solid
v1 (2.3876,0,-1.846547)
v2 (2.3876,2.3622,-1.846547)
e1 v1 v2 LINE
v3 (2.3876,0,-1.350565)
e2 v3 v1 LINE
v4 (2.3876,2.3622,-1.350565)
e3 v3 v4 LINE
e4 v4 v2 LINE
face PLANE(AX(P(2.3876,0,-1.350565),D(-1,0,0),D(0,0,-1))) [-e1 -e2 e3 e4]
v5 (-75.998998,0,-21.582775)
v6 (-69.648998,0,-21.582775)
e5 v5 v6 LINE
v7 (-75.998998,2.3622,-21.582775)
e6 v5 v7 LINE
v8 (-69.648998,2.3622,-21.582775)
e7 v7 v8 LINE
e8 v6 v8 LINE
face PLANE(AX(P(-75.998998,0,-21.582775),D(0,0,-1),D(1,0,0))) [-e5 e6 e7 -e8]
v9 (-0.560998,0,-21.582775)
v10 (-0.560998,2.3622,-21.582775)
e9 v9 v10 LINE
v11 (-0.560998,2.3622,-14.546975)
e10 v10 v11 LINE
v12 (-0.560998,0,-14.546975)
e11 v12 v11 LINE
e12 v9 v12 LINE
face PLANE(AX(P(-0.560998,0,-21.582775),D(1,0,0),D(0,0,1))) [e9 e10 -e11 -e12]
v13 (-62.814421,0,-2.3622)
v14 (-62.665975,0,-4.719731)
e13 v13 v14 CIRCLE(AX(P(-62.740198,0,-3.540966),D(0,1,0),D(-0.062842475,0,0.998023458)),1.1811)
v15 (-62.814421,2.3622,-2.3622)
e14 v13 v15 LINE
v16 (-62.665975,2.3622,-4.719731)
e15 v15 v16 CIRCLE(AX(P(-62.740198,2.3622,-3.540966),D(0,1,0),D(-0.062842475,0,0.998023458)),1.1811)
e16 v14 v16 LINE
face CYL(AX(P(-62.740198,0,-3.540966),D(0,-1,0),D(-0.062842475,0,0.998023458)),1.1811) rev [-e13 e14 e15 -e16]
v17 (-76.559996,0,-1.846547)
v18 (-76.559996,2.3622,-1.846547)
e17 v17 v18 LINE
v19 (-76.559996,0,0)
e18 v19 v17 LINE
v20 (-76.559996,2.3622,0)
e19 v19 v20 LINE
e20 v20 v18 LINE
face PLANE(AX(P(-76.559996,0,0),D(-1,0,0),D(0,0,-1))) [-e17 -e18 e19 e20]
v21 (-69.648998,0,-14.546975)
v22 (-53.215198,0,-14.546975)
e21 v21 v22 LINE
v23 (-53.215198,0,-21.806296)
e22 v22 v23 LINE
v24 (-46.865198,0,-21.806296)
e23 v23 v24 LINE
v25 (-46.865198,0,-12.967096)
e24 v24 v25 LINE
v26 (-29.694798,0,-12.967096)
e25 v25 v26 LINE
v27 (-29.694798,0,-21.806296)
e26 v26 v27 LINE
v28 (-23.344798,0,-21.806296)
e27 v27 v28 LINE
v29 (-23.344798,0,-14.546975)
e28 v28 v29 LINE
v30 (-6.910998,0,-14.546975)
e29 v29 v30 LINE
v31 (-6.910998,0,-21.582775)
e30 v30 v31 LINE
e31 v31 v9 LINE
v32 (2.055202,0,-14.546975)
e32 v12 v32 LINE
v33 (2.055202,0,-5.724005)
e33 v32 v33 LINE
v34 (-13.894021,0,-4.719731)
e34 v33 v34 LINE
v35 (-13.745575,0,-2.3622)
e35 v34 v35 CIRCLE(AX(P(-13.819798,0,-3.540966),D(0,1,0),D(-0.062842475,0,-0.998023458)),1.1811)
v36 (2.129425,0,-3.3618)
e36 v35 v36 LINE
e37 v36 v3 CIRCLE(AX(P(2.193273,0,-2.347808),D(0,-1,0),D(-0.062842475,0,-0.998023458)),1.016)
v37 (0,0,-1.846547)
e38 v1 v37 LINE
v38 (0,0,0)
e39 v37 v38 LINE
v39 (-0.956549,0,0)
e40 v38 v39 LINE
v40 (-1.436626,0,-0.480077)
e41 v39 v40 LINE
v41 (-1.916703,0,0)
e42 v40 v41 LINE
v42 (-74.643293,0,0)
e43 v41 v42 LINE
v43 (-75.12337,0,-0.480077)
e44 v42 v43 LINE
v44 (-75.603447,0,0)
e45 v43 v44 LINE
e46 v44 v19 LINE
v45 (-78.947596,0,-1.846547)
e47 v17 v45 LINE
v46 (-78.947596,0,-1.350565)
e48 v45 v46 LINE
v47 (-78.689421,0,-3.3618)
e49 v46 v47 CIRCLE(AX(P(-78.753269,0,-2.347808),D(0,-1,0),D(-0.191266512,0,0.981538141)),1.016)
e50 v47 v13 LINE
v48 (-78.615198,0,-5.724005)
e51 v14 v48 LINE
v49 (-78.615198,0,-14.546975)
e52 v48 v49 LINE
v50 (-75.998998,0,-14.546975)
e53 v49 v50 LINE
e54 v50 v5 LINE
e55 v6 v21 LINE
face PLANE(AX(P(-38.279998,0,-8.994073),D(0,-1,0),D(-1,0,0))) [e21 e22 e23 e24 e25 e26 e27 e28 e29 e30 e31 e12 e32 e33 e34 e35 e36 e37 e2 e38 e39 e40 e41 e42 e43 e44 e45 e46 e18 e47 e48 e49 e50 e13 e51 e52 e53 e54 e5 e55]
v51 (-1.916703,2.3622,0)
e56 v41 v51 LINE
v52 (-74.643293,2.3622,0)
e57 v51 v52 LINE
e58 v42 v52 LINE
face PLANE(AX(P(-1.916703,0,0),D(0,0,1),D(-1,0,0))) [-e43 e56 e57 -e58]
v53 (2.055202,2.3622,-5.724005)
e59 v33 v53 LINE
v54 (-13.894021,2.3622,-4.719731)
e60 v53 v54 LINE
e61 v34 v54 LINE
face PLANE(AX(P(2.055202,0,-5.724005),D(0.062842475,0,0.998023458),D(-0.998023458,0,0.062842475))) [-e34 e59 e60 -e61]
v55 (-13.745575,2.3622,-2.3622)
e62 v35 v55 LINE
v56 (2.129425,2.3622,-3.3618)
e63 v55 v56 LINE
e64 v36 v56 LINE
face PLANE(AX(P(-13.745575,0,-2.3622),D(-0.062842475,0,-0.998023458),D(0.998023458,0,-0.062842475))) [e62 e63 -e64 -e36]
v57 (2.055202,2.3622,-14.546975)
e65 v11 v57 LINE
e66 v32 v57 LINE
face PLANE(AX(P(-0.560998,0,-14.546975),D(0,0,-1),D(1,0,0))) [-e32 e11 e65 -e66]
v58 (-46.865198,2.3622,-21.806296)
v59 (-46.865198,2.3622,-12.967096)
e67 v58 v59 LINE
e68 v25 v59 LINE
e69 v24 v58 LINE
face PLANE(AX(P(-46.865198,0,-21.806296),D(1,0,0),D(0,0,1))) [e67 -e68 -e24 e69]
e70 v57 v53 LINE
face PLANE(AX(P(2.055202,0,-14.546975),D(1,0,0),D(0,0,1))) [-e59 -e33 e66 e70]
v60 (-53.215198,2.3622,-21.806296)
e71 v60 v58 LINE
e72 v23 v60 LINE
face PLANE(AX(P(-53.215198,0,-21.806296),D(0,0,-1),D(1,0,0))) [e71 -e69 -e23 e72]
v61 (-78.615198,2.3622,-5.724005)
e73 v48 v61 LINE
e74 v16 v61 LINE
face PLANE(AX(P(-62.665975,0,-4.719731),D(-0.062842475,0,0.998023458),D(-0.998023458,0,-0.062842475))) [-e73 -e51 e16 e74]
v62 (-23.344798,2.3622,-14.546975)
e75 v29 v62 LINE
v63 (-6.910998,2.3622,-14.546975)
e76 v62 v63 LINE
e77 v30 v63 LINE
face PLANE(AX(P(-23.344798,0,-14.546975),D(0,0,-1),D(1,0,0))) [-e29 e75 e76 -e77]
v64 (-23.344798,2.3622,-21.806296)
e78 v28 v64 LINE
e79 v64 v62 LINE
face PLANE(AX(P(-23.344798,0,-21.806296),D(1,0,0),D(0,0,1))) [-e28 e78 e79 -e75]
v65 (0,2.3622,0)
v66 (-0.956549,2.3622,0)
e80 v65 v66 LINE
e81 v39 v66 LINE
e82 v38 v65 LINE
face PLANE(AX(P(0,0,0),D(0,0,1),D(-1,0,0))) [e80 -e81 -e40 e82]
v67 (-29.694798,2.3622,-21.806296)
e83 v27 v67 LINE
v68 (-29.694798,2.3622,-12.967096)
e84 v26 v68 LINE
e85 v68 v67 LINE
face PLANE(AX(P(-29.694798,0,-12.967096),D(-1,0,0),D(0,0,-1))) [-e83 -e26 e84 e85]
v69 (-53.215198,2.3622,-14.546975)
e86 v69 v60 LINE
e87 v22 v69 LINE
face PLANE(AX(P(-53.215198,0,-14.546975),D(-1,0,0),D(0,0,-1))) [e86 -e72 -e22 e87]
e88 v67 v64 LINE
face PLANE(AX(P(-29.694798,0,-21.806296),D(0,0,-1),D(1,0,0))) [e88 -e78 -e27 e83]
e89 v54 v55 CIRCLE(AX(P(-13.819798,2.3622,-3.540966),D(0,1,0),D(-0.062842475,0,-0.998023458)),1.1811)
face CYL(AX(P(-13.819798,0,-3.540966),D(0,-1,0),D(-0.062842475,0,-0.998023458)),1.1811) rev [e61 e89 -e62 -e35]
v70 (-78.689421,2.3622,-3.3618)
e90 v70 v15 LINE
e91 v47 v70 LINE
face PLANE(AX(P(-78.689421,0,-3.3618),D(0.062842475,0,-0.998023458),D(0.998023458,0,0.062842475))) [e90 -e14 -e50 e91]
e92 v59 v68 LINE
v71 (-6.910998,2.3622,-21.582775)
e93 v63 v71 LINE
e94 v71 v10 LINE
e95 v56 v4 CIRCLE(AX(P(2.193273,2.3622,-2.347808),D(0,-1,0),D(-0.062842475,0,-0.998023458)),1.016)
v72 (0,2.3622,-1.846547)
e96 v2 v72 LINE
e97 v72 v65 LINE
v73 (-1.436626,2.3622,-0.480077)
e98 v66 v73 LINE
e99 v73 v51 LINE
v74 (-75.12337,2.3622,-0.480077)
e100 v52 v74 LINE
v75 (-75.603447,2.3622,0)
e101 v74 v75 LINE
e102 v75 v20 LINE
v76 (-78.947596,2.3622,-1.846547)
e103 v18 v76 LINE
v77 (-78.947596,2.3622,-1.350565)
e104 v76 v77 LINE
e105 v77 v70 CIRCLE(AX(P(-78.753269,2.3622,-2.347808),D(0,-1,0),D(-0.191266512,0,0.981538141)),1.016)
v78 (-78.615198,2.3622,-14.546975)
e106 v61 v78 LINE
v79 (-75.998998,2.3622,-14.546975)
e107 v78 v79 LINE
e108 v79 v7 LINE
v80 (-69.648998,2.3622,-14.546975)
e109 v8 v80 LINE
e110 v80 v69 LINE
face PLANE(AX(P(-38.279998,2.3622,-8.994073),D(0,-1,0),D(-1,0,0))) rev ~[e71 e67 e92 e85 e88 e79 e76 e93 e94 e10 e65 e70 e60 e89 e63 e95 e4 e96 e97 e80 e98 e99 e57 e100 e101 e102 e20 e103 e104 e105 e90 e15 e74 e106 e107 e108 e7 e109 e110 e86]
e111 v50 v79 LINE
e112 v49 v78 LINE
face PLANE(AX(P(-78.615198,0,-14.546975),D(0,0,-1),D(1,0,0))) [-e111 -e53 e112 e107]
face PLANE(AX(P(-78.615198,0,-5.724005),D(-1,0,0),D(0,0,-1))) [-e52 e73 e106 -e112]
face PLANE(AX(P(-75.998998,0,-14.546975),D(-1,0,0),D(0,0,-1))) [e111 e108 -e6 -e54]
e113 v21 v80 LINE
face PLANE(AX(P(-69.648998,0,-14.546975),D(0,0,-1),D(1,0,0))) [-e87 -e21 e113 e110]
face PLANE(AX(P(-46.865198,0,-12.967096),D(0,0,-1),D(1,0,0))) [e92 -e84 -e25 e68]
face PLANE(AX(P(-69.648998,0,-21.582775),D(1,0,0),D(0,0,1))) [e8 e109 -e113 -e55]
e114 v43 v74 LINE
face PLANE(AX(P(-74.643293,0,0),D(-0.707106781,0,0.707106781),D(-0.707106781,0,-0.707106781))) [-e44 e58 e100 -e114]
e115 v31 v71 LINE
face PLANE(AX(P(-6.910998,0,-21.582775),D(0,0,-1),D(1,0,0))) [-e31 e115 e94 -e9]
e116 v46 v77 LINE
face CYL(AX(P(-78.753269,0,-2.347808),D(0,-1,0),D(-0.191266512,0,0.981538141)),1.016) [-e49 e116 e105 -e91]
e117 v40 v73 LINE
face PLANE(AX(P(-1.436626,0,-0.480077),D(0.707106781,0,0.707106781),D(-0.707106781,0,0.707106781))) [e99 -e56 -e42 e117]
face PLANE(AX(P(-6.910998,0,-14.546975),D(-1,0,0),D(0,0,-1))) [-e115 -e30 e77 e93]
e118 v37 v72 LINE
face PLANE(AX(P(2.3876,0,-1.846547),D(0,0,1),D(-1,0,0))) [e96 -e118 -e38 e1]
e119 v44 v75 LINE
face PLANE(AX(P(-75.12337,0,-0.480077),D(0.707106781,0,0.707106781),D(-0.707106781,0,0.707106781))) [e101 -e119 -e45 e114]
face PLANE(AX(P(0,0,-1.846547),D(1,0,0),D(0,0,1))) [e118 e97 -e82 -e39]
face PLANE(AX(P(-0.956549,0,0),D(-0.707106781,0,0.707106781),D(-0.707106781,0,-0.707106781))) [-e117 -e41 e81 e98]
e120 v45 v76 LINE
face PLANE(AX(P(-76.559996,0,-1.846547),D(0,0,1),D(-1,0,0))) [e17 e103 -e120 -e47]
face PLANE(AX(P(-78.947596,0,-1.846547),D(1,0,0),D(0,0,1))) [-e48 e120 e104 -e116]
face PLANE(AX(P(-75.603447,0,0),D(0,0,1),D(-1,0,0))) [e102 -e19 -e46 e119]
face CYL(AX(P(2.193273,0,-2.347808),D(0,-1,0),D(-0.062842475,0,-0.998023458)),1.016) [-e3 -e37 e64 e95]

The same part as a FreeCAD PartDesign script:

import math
import FreeCAD as App
import Part
import Sketcher
Q = App.Units.Quantity

doc = App.newDocument("Part")
body = doc.addObject("PartDesign::Body", "Body")

# Sketch on XZ plane
sketch1 = doc.addObject("Sketcher::SketchObject", "Sketch")
body.addObject(sketch1)
sketch1.AttachmentSupport = (doc.XZ_Plane, [""])
sketch1.MapMode = "FlatFace"
sketch1.addGeometry([
    Part.LineSegment(App.Vector(2.055202, -5.724005, 0), App.Vector(2.055202, -14.546975, 0)),  # 0
    Part.LineSegment(App.Vector(2.055202, -14.546975, 0), App.Vector(-0.560998, -14.546975, 0)),  # 1
    Part.LineSegment(App.Vector(-0.560998, -14.546975, 0), App.Vector(-0.560998, -21.582775, 0)),  # 2
    Part.LineSegment(App.Vector(-0.560998, -21.582775, 0), App.Vector(-6.910998, -21.582775, 0)),  # 3
    Part.LineSegment(App.Vector(-6.910998, -21.582775, 0), App.Vector(-6.910998, -14.546975, 0)),  # 4
    Part.LineSegment(App.Vector(-6.910998, -14.546975, 0), App.Vector(-23.344798, -14.546975, 0)),  # 5
    Part.LineSegment(App.Vector(-23.344798, -14.546975, 0), App.Vector(-23.344798, -21.806296, 0)),  # 6
    Part.LineSegment(App.Vector(-23.344798, -21.806296, 0), App.Vector(-29.694798, -21.806296, 0)),  # 7
    Part.LineSegment(App.Vector(-29.694798, -21.806296, 0), App.Vector(-29.694798, -12.967096, 0)),  # 8
    Part.LineSegment(App.Vector(-29.694798, -12.967096, 0), App.Vector(-46.865198, -12.967096, 0)),  # 9
    Part.LineSegment(App.Vector(-46.865198, -12.967096, 0), App.Vector(-46.865198, -21.806296, 0)),  # 10
    Part.LineSegment(App.Vector(-46.865198, -21.806296, 0), App.Vector(-53.215198, -21.806296, 0)),  # 11
    Part.LineSegment(App.Vector(-53.215198, -21.806296, 0), App.Vector(-53.215198, -14.546975, 0)),  # 12
    Part.LineSegment(App.Vector(-53.215198, -14.546975, 0), App.Vector(-69.648998, -14.546975, 0)),  # 13
    Part.LineSegment(App.Vector(-69.648998, -14.546975, 0), App.Vector(-69.648998, -21.582775, 0)),  # 14
    Part.LineSegment(App.Vector(-69.648998, -21.582775, 0), App.Vector(-75.998998, -21.582775, 0)),  # 15
    Part.LineSegment(App.Vector(-75.998998, -21.582775, 0), App.Vector(-75.998998, -14.546975, 0)),  # 16
    Part.LineSegment(App.Vector(-75.998998, -14.546975, 0), App.Vector(-78.615198, -14.546975, 0)),  # 17
    Part.LineSegment(App.Vector(-78.615198, -14.546975, 0), App.Vector(-78.615198, -5.724005, 0)),  # 18
    Part.LineSegment(App.Vector(-78.615198, -5.724005, 0), App.Vector(-62.665975, -4.719731, 0)),  # 19
    Part.ArcOfCircle(Part.Circle(App.Vector(-62.740198, -3.540966, 0), App.Vector(0, 0, 1), 1.1811), math.radians(-86.397017), math.radians(93.602983)),  # 20
    Part.LineSegment(App.Vector(-62.814421, -2.3622, 0), App.Vector(-78.689421, -3.3618, 0)),  # 21
    Part.ArcOfCircle(Part.Circle(App.Vector(-78.753269, -2.347808, 0), App.Vector(0, 0, 1), 1.016), math.radians(101.026706), math.radians(273.602983)),  # 22
    Part.LineSegment(App.Vector(-78.947596, -1.350565, 0), App.Vector(-78.947596, -1.846547, 0)),  # 23
    Part.LineSegment(App.Vector(-78.947596, -1.846547, 0), App.Vector(-76.559996, -1.846547, 0)),  # 24
    Part.LineSegment(App.Vector(-76.559996, -1.846547, 0), App.Vector(-76.559996, 0, 0)),  # 25
    Part.LineSegment(App.Vector(-76.559996, 0, 0), App.Vector(-75.603447, 0, 0)),  # 26
    Part.LineSegment(App.Vector(-75.603447, 0, 0), App.Vector(-75.12337, -0.480077, 0)),  # 27
    Part.LineSegment(App.Vector(-75.12337, -0.480077, 0), App.Vector(-74.643293, 0, 0)),  # 28
    Part.LineSegment(App.Vector(-74.643293, 0, 0), App.Vector(-1.916703, 0, 0)),  # 29
    Part.LineSegment(App.Vector(-1.916703, 0, 0), App.Vector(-1.436626, -0.480077, 0)),  # 30
    Part.LineSegment(App.Vector(-1.436626, -0.480077, 0), App.Vector(-0.956549, 0, 0)),  # 31
    Part.LineSegment(App.Vector(-0.956549, 0, 0), App.Vector(0, 0, 0)),  # 32
    Part.LineSegment(App.Vector(0, 0, 0), App.Vector(0, -1.846547, 0)),  # 33
    Part.LineSegment(App.Vector(0, -1.846547, 0), App.Vector(2.3876, -1.846547, 0)),  # 34
    Part.LineSegment(App.Vector(2.3876, -1.846547, 0), App.Vector(2.3876, -1.350565, 0)),  # 35
    Part.ArcOfCircle(Part.Circle(App.Vector(2.193273, -2.347808, 0), App.Vector(0, 0, 1), 1.016), math.radians(-93.602983), math.radians(78.973294)),  # 36
    Part.LineSegment(App.Vector(2.129425, -3.3618, 0), App.Vector(-13.745575, -2.3622, 0)),  # 37
    Part.ArcOfCircle(Part.Circle(App.Vector(-13.819798, -3.540966, 0), App.Vector(0, 0, 1), 1.1811), math.radians(86.397017), math.radians(266.397017)),  # 38
    Part.LineSegment(App.Vector(-13.894021, -4.719731, 0), App.Vector(2.055202, -5.724005, 0)),  # 39
], False)
sketch1.addConstraint([
    Sketcher.Constraint("Coincident", 0, 2, 1, 1),
    Sketcher.Constraint("Coincident", 1, 2, 2, 1),
    Sketcher.Constraint("Coincident", 2, 2, 3, 1),
    Sketcher.Constraint("Coincident", 3, 2, 4, 1),
    Sketcher.Constraint("Coincident", 4, 2, 5, 1),
    Sketcher.Constraint("Coincident", 5, 2, 6, 1),
    Sketcher.Constraint("Coincident", 6, 2, 7, 1),
    Sketcher.Constraint("Coincident", 7, 2, 8, 1),
    Sketcher.Constraint("Coincident", 8, 2, 9, 1),
    Sketcher.Constraint("Coincident", 9, 2, 10, 1),
    Sketcher.Constraint("Coincident", 10, 2, 11, 1),
    Sketcher.Constraint("Coincident", 11, 2, 12, 1),
    Sketcher.Constraint("Coincident", 12, 2, 13, 1),
    Sketcher.Constraint("Coincident", 13, 2, 14, 1),
    Sketcher.Constraint("Coincident", 14, 2, 15, 1),
    Sketcher.Constraint("Coincident", 15, 2, 16, 1),
    Sketcher.Constraint("Coincident", 16, 2, 17, 1),
    Sketcher.Constraint("Coincident", 17, 2, 18, 1),
    Sketcher.Constraint("Coincident", 18, 2, 19, 1),
    Sketcher.Constraint("Coincident", 19, 2, 20, 1),
    Sketcher.Constraint("Coincident", 20, 2, 21, 1),
    Sketcher.Constraint("Coincident", 21, 2, 22, 2),
    Sketcher.Constraint("Coincident", 22, 1, 23, 1),
    Sketcher.Constraint("Coincident", 23, 2, 24, 1),
    Sketcher.Constraint("Coincident", 24, 2, 25, 1),
    Sketcher.Constraint("Coincident", 25, 2, 26, 1),
    Sketcher.Constraint("Coincident", 26, 2, 27, 1),
    Sketcher.Constraint("Coincident", 27, 2, 28, 1),
    Sketcher.Constraint("Coincident", 28, 2, 29, 1),
    Sketcher.Constraint("Coincident", 29, 2, 30, 1),
    Sketcher.Constraint("Coincident", 30, 2, 31, 1),
    Sketcher.Constraint("Coincident", 31, 2, 32, 1),
    Sketcher.Constraint("Coincident", 32, 2, 33, 1),
    Sketcher.Constraint("Coincident", 33, 2, 34, 1),
    Sketcher.Constraint("Coincident", 34, 2, 35, 1),
    Sketcher.Constraint("Coincident", 35, 2, 36, 2),
    Sketcher.Constraint("Coincident", 36, 1, 37, 1),
    Sketcher.Constraint("Coincident", 37, 2, 38, 1),
    Sketcher.Constraint("Coincident", 38, 2, 39, 1),
    Sketcher.Constraint("Coincident", 39, 2, 0, 1),
    Sketcher.Constraint("Vertical", 0),
    Sketcher.Constraint("Horizontal", 1),
    Sketcher.Constraint("Vertical", 2),
    Sketcher.Constraint("Horizontal", 3),
    Sketcher.Constraint("Vertical", 4),
    Sketcher.Constraint("Horizontal", 5),
    Sketcher.Constraint("Vertical", 6),
    Sketcher.Constraint("Horizontal", 7),
    Sketcher.Constraint("Vertical", 8),
    Sketcher.Constraint("Horizontal", 9),
    Sketcher.Constraint("Vertical", 10),
    Sketcher.Constraint("Horizontal", 11),
    Sketcher.Constraint("Vertical", 12),
    Sketcher.Constraint("Horizontal", 13),
    Sketcher.Constraint("Vertical", 14),
    Sketcher.Constraint("Horizontal", 15),
    Sketcher.Constraint("Vertical", 16),
    Sketcher.Constraint("Horizontal", 17),
    Sketcher.Constraint("Vertical", 18),
    Sketcher.Constraint("Vertical", 23),
    Sketcher.Constraint("Horizontal", 24),
    Sketcher.Constraint("Vertical", 25),
    Sketcher.Constraint("Horizontal", 26),
    Sketcher.Constraint("Horizontal", 29),
    Sketcher.Constraint("Horizontal", 32),
    Sketcher.Constraint("Vertical", 33),
    Sketcher.Constraint("Horizontal", 34),
    Sketcher.Constraint("Vertical", 35),
    Sketcher.Constraint("Coincident", 32, 2, -1, 1),
    Sketcher.Constraint("PointOnObject", 25, 2, -1),
    Sketcher.Constraint("PointOnObject", 28, 2, -1),
    Sketcher.Constraint("Radius", 22, Q("0.04 in")),
    Sketcher.Constraint("Radius", 36, Q("0.04 in")),
    Sketcher.Constraint("DistanceX", 3, 2, 3, 1, Q("0.25 in")),
    Sketcher.Constraint("DistanceX", 7, 2, 7, 1, Q("0.25 in")),
    Sketcher.Constraint("DistanceX", 11, 2, 11, 1, Q("0.25 in")),
    Sketcher.Constraint("DistanceX", 15, 2, 15, 1, Q("0.25 in")),
    Sketcher.Constraint("Radius", 20, Q("0.0465 in")),
    Sketcher.Constraint("Radius", 38, Q("0.0465 in")),
    Sketcher.Constraint("DistanceX", 1, 2, 1, 1, Q("0.103 in")),
    Sketcher.Constraint("DistanceX", 5, 2, 5, 1, Q("0.647 in")),
    Sketcher.Constraint("DistanceX", 9, 2, 9, 1, Q("0.676 in")),
    Sketcher.Constraint("DistanceX", 13, 2, 13, 1, Q("0.647 in")),
    Sketcher.Constraint("DistanceX", 17, 2, 17, 1, Q("0.103 in")),
    Sketcher.Constraint("DistanceX", 24, 1, 24, 2, Q("0.094 in")),
    Sketcher.Constraint("DistanceX", 34, 1, 34, 2, Q("0.094 in")),
    Sketcher.Constraint("DistanceY", 2, 2, 2, 1, Q("0.277 in")),
    Sketcher.Constraint("DistanceY", 4, 1, 4, 2, Q("0.277 in")),
    Sketcher.Constraint("DistanceY", 8, 1, 8, 2, Q("0.348 in")),
    Sketcher.Constraint("DistanceY", 10, 2, 10, 1, Q("0.348 in")),
    Sketcher.Constraint("DistanceY", 14, 2, 14, 1, Q("0.277 in")),
    Sketcher.Constraint("DistanceY", 16, 1, 16, 2, Q("0.277 in")),
    Sketcher.Constraint("DistanceY", 6, 2, 6, 1, Q("0.2858 in")),
    Sketcher.Constraint("DistanceY", 12, 1, 12, 2, Q("0.2858 in")),
    Sketcher.Constraint("DistanceY", 20, 2, -1, 1, Q("0.093 in")),
    Sketcher.Constraint("DistanceY", 37, 2, -1, 1, Q("0.093 in")),
    Sketcher.Constraint("DistanceX", 20, 3, 38, 3, Q("1.926 in")),
    Sketcher.Constraint("DistanceX", 38, 3, 0, 2, Q("0.625 in")),
    Sketcher.Constraint("DistanceY", 18, 2, 21, 2, Q("0.0930002 in")),
    Sketcher.Constraint("DistanceY", 39, 2, 36, 1, Q("0.0930002 in")),
    Sketcher.Constraint("DistanceX", 26, 1, 26, 2, 0.956549),
    Sketcher.Constraint("DistanceX", 29, 1, 29, 2, 72.72659),
    Sketcher.Constraint("DistanceX", 32, 1, 32, 2, 0.956549),
    Sketcher.Constraint("DistanceY", 0, 2, 0, 1, 8.822971),
    Sketcher.Constraint("DistanceY", 18, 1, 18, 2, 8.822971),
    Sketcher.Constraint("DistanceY", 23, 2, 23, 1, 0.495981),
    Sketcher.Constraint("DistanceY", 35, 1, 35, 2, 0.495981),
    Sketcher.Constraint("DistanceY", 21, 2, -1, 1, 3.3618),
    Sketcher.Constraint("DistanceX", 30, 2, 36, 3, 3.629899),
    Sketcher.Constraint("DistanceY", 1, 2, 30, 2, 14.066898),
    Sketcher.Constraint("Distance", 19, 15.98081),
    Sketcher.Constraint("Distance", 21, 15.90644),
    Sketcher.Constraint("Distance", 27, 0.678932),
    Sketcher.Constraint("Distance", 28, 0.678932),
    Sketcher.Constraint("Distance", 30, 0.678932),
    Sketcher.Constraint("Distance", 31, 0.678932),
    Sketcher.Constraint("Distance", 37, 15.90644),
    Sketcher.Constraint("Distance", 39, 15.98081),
    Sketcher.Constraint("DistanceY", 25, 1, 25, 2, 1.846547),
    Sketcher.Constraint("DistanceY", 33, 2, 33, 1, 1.846547),
    Sketcher.Constraint("DistanceX", 22, 3, -1, 1, 78.753269),
    Sketcher.Constraint("DistanceY", 22, 3, -1, 1, 2.347808),
    Sketcher.Constraint("DistanceY", 19, 2, -1, 1, 4.719731),
])
pad1 = doc.addObject("PartDesign::Pad", "Pad")
body.addObject(pad1)
pad1.Profile = sketch1
pad1.Length = Q("0.093 in")
pad1.Reversed = True

doc.recompute()
